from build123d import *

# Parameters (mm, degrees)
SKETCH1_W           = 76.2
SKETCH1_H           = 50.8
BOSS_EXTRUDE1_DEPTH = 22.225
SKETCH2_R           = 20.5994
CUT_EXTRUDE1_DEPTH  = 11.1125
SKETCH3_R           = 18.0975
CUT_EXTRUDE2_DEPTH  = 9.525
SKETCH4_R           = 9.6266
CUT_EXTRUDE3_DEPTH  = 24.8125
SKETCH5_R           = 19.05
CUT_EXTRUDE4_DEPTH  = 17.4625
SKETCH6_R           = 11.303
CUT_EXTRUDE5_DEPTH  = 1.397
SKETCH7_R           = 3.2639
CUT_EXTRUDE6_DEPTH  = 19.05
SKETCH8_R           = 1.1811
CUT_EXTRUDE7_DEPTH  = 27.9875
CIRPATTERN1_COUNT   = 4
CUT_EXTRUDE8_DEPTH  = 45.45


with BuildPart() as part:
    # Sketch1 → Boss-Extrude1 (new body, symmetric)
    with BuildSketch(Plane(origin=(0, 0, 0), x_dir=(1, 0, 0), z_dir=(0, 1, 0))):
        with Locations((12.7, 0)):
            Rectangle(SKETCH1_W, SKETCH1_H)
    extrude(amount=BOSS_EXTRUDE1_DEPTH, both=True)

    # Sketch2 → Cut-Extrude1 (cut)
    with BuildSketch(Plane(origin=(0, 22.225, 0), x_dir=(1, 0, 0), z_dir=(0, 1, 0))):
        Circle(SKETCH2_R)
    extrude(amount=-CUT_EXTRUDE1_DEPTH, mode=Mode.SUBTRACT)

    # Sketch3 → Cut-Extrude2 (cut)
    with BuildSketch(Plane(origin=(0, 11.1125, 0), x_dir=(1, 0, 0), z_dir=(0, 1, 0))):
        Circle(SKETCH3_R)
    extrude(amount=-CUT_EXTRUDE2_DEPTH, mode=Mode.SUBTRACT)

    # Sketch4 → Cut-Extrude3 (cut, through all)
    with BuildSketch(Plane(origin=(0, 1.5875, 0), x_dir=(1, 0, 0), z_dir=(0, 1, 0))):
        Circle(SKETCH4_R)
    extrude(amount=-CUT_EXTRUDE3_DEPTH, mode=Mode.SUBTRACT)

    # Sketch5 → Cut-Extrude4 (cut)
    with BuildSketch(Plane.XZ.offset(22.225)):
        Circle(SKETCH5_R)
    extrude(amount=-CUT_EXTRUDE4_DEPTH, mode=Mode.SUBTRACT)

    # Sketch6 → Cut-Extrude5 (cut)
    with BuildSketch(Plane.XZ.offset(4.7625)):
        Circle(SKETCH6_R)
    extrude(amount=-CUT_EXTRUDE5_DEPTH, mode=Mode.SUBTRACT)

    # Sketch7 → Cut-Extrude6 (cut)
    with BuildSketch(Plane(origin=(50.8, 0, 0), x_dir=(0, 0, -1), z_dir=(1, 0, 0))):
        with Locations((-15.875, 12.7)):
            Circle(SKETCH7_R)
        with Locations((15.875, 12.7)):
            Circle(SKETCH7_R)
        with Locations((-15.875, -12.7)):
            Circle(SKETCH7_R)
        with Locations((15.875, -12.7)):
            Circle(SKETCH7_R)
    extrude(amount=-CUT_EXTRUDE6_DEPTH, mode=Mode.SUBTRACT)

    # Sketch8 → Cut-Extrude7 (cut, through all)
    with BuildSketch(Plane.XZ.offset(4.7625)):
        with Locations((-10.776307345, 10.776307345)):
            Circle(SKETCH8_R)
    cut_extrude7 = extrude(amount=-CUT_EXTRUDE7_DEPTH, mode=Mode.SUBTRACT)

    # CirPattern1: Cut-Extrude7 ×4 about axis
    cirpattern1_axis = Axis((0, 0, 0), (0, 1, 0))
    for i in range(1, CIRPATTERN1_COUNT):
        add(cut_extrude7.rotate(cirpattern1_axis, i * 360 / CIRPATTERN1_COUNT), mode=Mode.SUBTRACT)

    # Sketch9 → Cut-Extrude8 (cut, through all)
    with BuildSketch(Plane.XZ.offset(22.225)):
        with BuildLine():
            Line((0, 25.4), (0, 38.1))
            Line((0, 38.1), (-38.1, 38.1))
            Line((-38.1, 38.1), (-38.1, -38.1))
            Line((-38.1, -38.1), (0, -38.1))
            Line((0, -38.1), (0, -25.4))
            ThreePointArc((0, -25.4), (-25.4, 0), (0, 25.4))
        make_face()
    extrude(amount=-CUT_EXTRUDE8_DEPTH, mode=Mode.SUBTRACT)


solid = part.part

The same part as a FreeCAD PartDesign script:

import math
import FreeCAD as App
import Part
import Sketcher
Q = App.Units.Quantity


def add_polygon(sketch, points):
    """Adds a closed chain of lines whose ends are joined by coincident constraints."""
    first, n = sketch.GeometryCount, len(points)
    for a, b in zip(points, points[1:] + points[:1]):
        sketch.addGeometry(Part.LineSegment(App.Vector(*a, 0), App.Vector(*b, 0)), False)
    for i in range(n):
        sketch.addConstraint(Sketcher.Constraint("Coincident", first + i, 2, first + (i + 1) % n, 1))

doc = App.newDocument("Part")
params = doc.addObject("Spreadsheet::Sheet", "Params")
for row, (alias, value) in enumerate([
    ("sketch1_width", "3 in"),
    ("sketch1_height", "2 in"),
    ("pad1_length", "1.75 in"),
    ("sketch2_diameter", "1.622 in"),
    ("pocket1_length", "0.4375 in"),
    ("sketch3_diameter", "1.425 in"),
    ("pocket2_length", "0.375 in"),
    ("sketch4_diameter", "0.758 in"),
    ("sketch5_diameter", "1.5 in"),
    ("pocket4_length", "0.6875 in"),
    ("sketch6_diameter", "0.89 in"),
    ("pocket5_length", "0.055 in"),
    ("sketch7_diameter", "0.257 in"),
    ("pocket6_length", "0.75 in"),
    ("sketch8_diameter", "0.093 in"),
    ("sketch9_radius", "1 in"),
    ("sketch9_height", "3 in"),
    ("sketch9_width", "1.5 in"),
], start=1):
    params.set(f"A{row}", alias)
    params.set(f"B{row}", "=" + value)
    params.setAlias(f"B{row}", alias)

body = doc.addObject("PartDesign::Body", "Body")

# Sketch on XZ plane
sketch1 = body.newObject("Sketcher::SketchObject", "Sketch")
sketch1.AttachmentSupport = (doc.getObject("XZ_Plane"), [""])
sketch1.MapMode = "FlatFace"
add_polygon(sketch1, [(-25.4, -25.4), (-25.4, 25.4), (50.8, 25.4), (50.8, -25.4)])  # lines 0-3
sketch1.addConstraint([
    Sketcher.Constraint("Vertical", 0),
    Sketcher.Constraint("Horizontal", 1),
    Sketcher.Constraint("Vertical", 2),
    Sketcher.Constraint("Horizontal", 3),
    Sketcher.Constraint("DistanceX", 1, 1, 1, 2, Q("3 in")),
    Sketcher.Constraint("DistanceY", 0, 1, 0, 2, Q("2 in")),
    Sketcher.Constraint("DistanceX", 0, 2, -1, 1, Q("1 in")),
    Sketcher.Constraint("DistanceY", -1, 1, 0, 2, Q("1 in")),
])
sketch1.setExpression("Constraints[8]", "Params.sketch1_width")
sketch1.setExpression("Constraints[9]", "Params.sketch1_height")
pad1 = body.newObject("PartDesign::Pad", "Pad")
pad1.Profile = sketch1
pad1.setExpression("Length", "Params.pad1_length")
pad1.Midplane = True

# Sketch on XZ plane
sketch2 = body.newObject("Sketcher::SketchObject", "Sketch001")
sketch2.AttachmentSupport = (doc.getObject("XZ_Plane"), [""])
sketch2.MapMode = "FlatFace"
sketch2.AttachmentOffset = App.Placement(App.Vector(0, 0, -0.875 * 25.4), App.Rotation())
sketch2.addGeometry(Part.Circle(App.Vector(0, 0, 0), App.Vector(0, 0, 1), 20.5994), False)
sketch2.addConstraint([
    Sketcher.Constraint("Coincident", 0, 3, -1, 1),
    Sketcher.Constraint("Diameter", 0, Q("1.622 in")),
])
sketch2.setExpression("Constraints[1]", "Params.sketch2_diameter")
pocket1 = body.newObject("PartDesign::Pocket", "Pocket")
pocket1.Profile = sketch2
pocket1.setExpression("Length", "Params.pocket1_length")
pocket1.Reversed = True

# Sketch on XZ plane
sketch3 = body.newObject("Sketcher::SketchObject", "Sketch002")
sketch3.AttachmentSupport = (doc.getObject("XZ_Plane"), [""])
sketch3.MapMode = "FlatFace"
sketch3.AttachmentOffset = App.Placement(App.Vector(0, 0, -0.4375 * 25.4), App.Rotation())
sketch3.addGeometry(Part.Circle(App.Vector(0, 0, 0), App.Vector(0, 0, 1), 18.0975), False)
sketch3.addConstraint([
    Sketcher.Constraint("Coincident", 0, 3, -1, 1),
    Sketcher.Constraint("Diameter", 0, Q("1.425 in")),
])
sketch3.setExpression("Constraints[1]", "Params.sketch3_diameter")
pocket2 = body.newObject("PartDesign::Pocket", "Pocket001")
pocket2.Profile = sketch3
pocket2.setExpression("Length", "Params.pocket2_length")
pocket2.Reversed = True

# Sketch on XZ plane
sketch4 = body.newObject("Sketcher::SketchObject", "Sketch003")
sketch4.AttachmentSupport = (doc.getObject("XZ_Plane"), [""])
sketch4.MapMode = "FlatFace"
sketch4.AttachmentOffset = App.Placement(App.Vector(0, 0, -0.0625 * 25.4), App.Rotation())
sketch4.addGeometry(Part.Circle(App.Vector(0, 0, 0), App.Vector(0, 0, 1), 9.6266), False)
sketch4.addConstraint([
    Sketcher.Constraint("Coincident", 0, 3, -1, 1),
    Sketcher.Constraint("Diameter", 0, Q("0.758 in")),
])
sketch4.setExpression("Constraints[1]", "Params.sketch4_diameter")
pocket3 = body.newObject("PartDesign::Pocket", "Pocket002")
pocket3.Profile = sketch4
pocket3.Type = "ThroughAll"
pocket3.Reversed = True

# Sketch on XZ plane
sketch5 = body.newObject("Sketcher::SketchObject", "Sketch004")
sketch5.AttachmentSupport = (doc.getObject("XZ_Plane"), [""])
sketch5.MapMode = "FlatFace"
sketch5.AttachmentOffset = App.Placement(App.Vector(0, 0, 0.875 * 25.4), App.Rotation())
sketch5.addGeometry(Part.Circle(App.Vector(0, 0, 0), App.Vector(0, 0, 1), 19.05), False)
sketch5.addConstraint([
    Sketcher.Constraint("Coincident", 0, 3, -1, 1),
    Sketcher.Constraint("Diameter", 0, Q("1.5 in")),
])
sketch5.setExpression("Constraints[1]", "Params.sketch5_diameter")
pocket4 = body.newObject("PartDesign::Pocket", "Pocket003")
pocket4.Profile = sketch5
pocket4.setExpression("Length", "Params.pocket4_length")

# Sketch on XZ plane
sketch6 = body.newObject("Sketcher::SketchObject", "Sketch005")
sketch6.AttachmentSupport = (doc.getObject("XZ_Plane"), [""])
sketch6.MapMode = "FlatFace"
sketch6.AttachmentOffset = App.Placement(App.Vector(0, 0, 0.1875 * 25.4), App.Rotation())
sketch6.addGeometry(Part.Circle(App.Vector(0, 0, 0), App.Vector(0, 0, 1), 11.303), False)
sketch6.addConstraint([
    Sketcher.Constraint("Coincident", 0, 3, -1, 1),
    Sketcher.Constraint("Diameter", 0, Q("0.89 in")),
])
sketch6.setExpression("Constraints[1]", "Params.sketch6_diameter")
pocket5 = body.newObject("PartDesign::Pocket", "Pocket004")
pocket5.Profile = sketch6
pocket5.setExpression("Length", "Params.pocket5_length")

# Sketch on YZ plane
sketch7 = body.newObject("Sketcher::SketchObject", "Sketch006")
sketch7.AttachmentSupport = (doc.getObject("YZ_Plane"), [""])
sketch7.MapMode = "FlatFace"
sketch7.AttachmentOffset = App.Placement(App.Vector(0, 0, 2 * 25.4), App.Rotation())
sketch7.addGeometry([
    Part.Circle(App.Vector(12.7, 15.875, 0), App.Vector(0, 0, 1), 3.2639),
    Part.Circle(App.Vector(12.7, -15.875, 0), App.Vector(0, 0, 1), 3.2639),
    Part.Circle(App.Vector(-12.7, 15.875, 0), App.Vector(0, 0, 1), 3.2639),
    Part.Circle(App.Vector(-12.7, -15.875, 0), App.Vector(0, 0, 1), 3.2639),
], False)
sketch7.addConstraint([
    Sketcher.Constraint("Equal", 0, 1),
    Sketcher.Constraint("Equal", 1, 2),
    Sketcher.Constraint("Equal", 2, 3),
    Sketcher.Constraint("Symmetric", 1, 3, 2, 3, -1, 1),
    Sketcher.Constraint("Symmetric", 0, 3, 3, 3, -1, 1),
    Sketcher.Constraint("Symmetric", 0, 3, 2, 3, -2),
    Sketcher.Constraint("Diameter", 0, Q("0.257 in")),
    Sketcher.Constraint("DistanceX", 2, 3, 0, 3, Q("1 in")),
    Sketcher.Constraint("DistanceY", 1, 3, 0, 3, Q("1.25 in")),
])
sketch7.setExpression("Constraints[6]", "Params.sketch7_diameter")
pocket6 = body.newObject("PartDesign::Pocket", "Pocket005")
pocket6.Profile = sketch7
pocket6.setExpression("Length", "Params.pocket6_length")

# Sketch on XZ plane
sketch8 = body.newObject("Sketcher::SketchObject", "Sketch007")
sketch8.AttachmentSupport = (doc.getObject("XZ_Plane"), [""])
sketch8.MapMode = "FlatFace"
sketch8.AttachmentOffset = App.Placement(App.Vector(0, 0, 0.1875 * 25.4), App.Rotation())
sketch8.addGeometry(Part.Circle(App.Vector(-10.776307, 10.776307, 0), App.Vector(0, 0, 1), 1.1811), False)
sketch8.addConstraint([
    Sketcher.Constraint("Diameter", 0, Q("0.093 in")),
    Sketcher.Constraint("DistanceX", 0, 3, -1, 1, 10.776307),
    Sketcher.Constraint("DistanceY", -1, 1, 0, 3, 10.776307),
])
sketch8.setExpression("Constraints[0]", "Params.sketch8_diameter")
pocket7 = body.newObject("PartDesign::Pocket", "Pocket006")
pocket7.Profile = sketch8
pocket7.Type = "ThroughAll"
doc.recompute()

polarpattern = body.newObject("PartDesign::PolarPattern", "PolarPattern")
polarpattern.Originals = [pocket7]
polarpattern.Axis = (doc.getObject("Y_Axis"), [""])
polarpattern.Angle = 360
polarpattern.Occurrences = 4
body.Tip = polarpattern

# Sketch on XZ plane
sketch9 = body.newObject("Sketcher::SketchObject", "Sketch008")
sketch9.AttachmentSupport = (doc.getObject("XZ_Plane"), [""])
sketch9.MapMode = "FlatFace"
sketch9.AttachmentOffset = App.Placement(App.Vector(0, 0, 0.875 * 25.4), App.Rotation())
sketch9.addGeometry([
    Part.LineSegment(App.Vector(0, 25.4, 0), App.Vector(0, 38.1, 0)),  # 0
    Part.LineSegment(App.Vector(0, 38.1, 0), App.Vector(-38.1, 38.1, 0)),  # 1
    Part.LineSegment(App.Vector(-38.1, 38.1, 0), App.Vector(-38.1, -38.1, 0)),  # 2
    Part.LineSegment(App.Vector(-38.1, -38.1, 0), App.Vector(0, -38.1, 0)),  # 3
    Part.LineSegment(App.Vector(0, -38.1, 0), App.Vector(0, -25.4, 0)),  # 4
    Part.ArcOfCircle(Part.Circle(App.Vector(0, 0, 0), App.Vector(0, 0, 1), 25.4), math.radians(90), math.radians(270)),  # 5
], False)
sketch9.addConstraint([
    Sketcher.Constraint("Coincident", 0, 2, 1, 1),
    Sketcher.Constraint("Coincident", 1, 2, 2, 1),
    Sketcher.Constraint("Coincident", 2, 2, 3, 1),
    Sketcher.Constraint("Coincident", 3, 2, 4, 1),
    Sketcher.Constraint("Coincident", 4, 2, 5, 2),
    Sketcher.Constraint("Coincident", 5, 1, 0, 1),
    Sketcher.Constraint("Vertical", 0),
    Sketcher.Constraint("Horizontal", 1),
    Sketcher.Constraint("Vertical", 2),
    Sketcher.Constraint("Horizontal", 3),
    Sketcher.Constraint("Vertical", 4),
    Sketcher.Constraint("Coincident", 5, 3, -1, 1),
    Sketcher.Constraint("Symmetric", 0, 2, 3, 2, -1, 1),
    Sketcher.Constraint("PointOnObject", 0, 2, -2),
    Sketcher.Constraint("Radius", 5, Q("1 in")),
    Sketcher.Constraint("DistanceY", 2, 2, 2, 1, Q("3 in")),
    Sketcher.Constraint("DistanceX", 1, 2, 1, 1, Q("1.5 in")),
])
sketch9.setExpression("Constraints[14]", "Params.sketch9_radius")
sketch9.setExpression("Constraints[15]", "Params.sketch9_height")
sketch9.setExpression("Constraints[16]", "Params.sketch9_width")
pocket8 = body.newObject("PartDesign::Pocket", "Pocket007")
pocket8.Profile = sketch9
pocket8.Type = "ThroughAll"

doc.recompute()
